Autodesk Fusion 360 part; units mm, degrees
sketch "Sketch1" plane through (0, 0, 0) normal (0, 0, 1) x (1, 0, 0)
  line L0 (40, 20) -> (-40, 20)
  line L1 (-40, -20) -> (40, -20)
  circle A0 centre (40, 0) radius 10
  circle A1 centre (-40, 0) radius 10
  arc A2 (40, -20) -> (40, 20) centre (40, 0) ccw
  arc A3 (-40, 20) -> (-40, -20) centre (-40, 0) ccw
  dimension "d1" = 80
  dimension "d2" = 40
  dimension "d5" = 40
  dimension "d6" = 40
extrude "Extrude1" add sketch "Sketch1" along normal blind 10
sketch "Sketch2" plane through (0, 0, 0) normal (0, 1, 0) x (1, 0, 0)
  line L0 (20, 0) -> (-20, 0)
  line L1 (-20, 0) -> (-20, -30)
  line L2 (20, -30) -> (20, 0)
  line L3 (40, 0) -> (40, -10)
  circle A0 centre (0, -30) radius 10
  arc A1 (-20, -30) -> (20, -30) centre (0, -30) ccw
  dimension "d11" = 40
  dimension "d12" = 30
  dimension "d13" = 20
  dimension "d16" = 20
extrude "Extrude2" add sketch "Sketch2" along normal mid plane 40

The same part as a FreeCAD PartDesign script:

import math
import FreeCAD as App
import Part
import Sketcher

V = App.Vector

doc = App.newDocument("Part")
params = doc.addObject("Spreadsheet::Sheet", "Params")
for row, (alias, value) in enumerate([
    ("sketch1_radius", "20 mm"),
    ("sketch1_width", "80 mm"),
    ("sketch1_diameter", "20 mm"),
    ("pad1_length", "10 mm"),
    ("sketch2_diameter", "20 mm"),
    ("sketch2_radius", "20 mm"),
    ("sketch2_height", "30 mm"),
    ("pad2_length", "40 mm"),
], start=1):
    params.set(f"A{row}", alias)
    params.set(f"B{row}", "=" + value)
    params.setAlias(f"B{row}", alias)

body = doc.addObject("PartDesign::Body", "Body")

# Sketch on XY plane
sketch1 = body.newObject("Sketcher::SketchObject", "Sketch")
sketch1.AttachmentSupport = (doc.getObject("XY_Plane"), [""])
sketch1.MapMode = "FlatFace"
sketch1.addGeometry([
    Part.ArcOfCircle(Part.Circle(V(40, 0, 0), V(0, 0, 1), 20), math.radians(-90), math.radians(90)),  # 0
    Part.LineSegment(V(40, 20, 0), V(-40, 20, 0)),  # 1
    Part.ArcOfCircle(Part.Circle(V(-40, 0, 0), V(0, 0, 1), 20), math.radians(90), math.radians(270)),  # 2
    Part.LineSegment(V(-40, -20, 0), V(40, -20, 0)),  # 3
    Part.Circle(V(-40, 0, 0), V(0, 0, 1), 10),  # 4
    Part.Circle(V(40, 0, 0), V(0, 0, 1), 10),  # 5
], False)
sketch1.addConstraint([
    Sketcher.Constraint("Tangent", 0, 2, 1, 1),
    Sketcher.Constraint("Tangent", 1, 2, 2, 1),
    Sketcher.Constraint("Tangent", 2, 2, 3, 1),
    Sketcher.Constraint("Tangent", 3, 2, 0, 1),
    Sketcher.Constraint("Horizontal", 1),
    Sketcher.Constraint("Horizontal", 3),
    Sketcher.Constraint("Coincident", 4, 3, 2, 3),
    Sketcher.Constraint("Coincident", 5, 3, 0, 3),
    Sketcher.Constraint("Equal", 4, 5),
    Sketcher.Constraint("Symmetric", 0, 3, 2, 3, -1, 1),
    Sketcher.Constraint("Radius", 0, 20.0),
    Sketcher.Constraint("DistanceX", 1, 2, 1, 1, 80.0),
    Sketcher.Constraint("Diameter", 4, 20.0),
])
sketch1.setExpression("Constraints[10]", "Params.sketch1_radius")
sketch1.setExpression("Constraints[11]", "Params.sketch1_width")
sketch1.setExpression("Constraints[12]", "Params.sketch1_diameter")
pad1 = body.newObject("PartDesign::Pad", "Pad")
pad1.Profile = sketch1
pad1.setExpression("Length", "Params.pad1_length")

# Sketch on XZ plane
sketch2 = body.newObject("Sketcher::SketchObject", "Sketch001")
sketch2.AttachmentSupport = (doc.getObject("XZ_Plane"), [""])
sketch2.MapMode = "FlatFace"
sketch2.addGeometry([
    Part.LineSegment(V(20, 30, 0), V(20, 0, 0)),  # 0
    Part.LineSegment(V(20, 0, 0), V(-20, 0, 0)),  # 1
    Part.LineSegment(V(-20, 0, 0), V(-20, 30, 0)),  # 2
    Part.ArcOfCircle(Part.Circle(V(0, 30, 0), V(0, 0, 1), 20), math.radians(0), math.radians(180)),  # 3
    Part.Circle(V(0, 30, 0), V(0, 0, 1), 10),  # 4
], False)
sketch2.addConstraint([
    Sketcher.Constraint("Coincident", 0, 2, 1, 1),
    Sketcher.Constraint("Coincident", 1, 2, 2, 1),
    Sketcher.Constraint("Tangent", 2, 2, 3, 2),
    Sketcher.Constraint("Tangent", 3, 1, 0, 1),
    Sketcher.Constraint("Vertical", 0),
    Sketcher.Constraint("Horizontal", 1),
    Sketcher.Constraint("Vertical", 2),
    Sketcher.Constraint("Coincident", 4, 3, 3, 3),
    Sketcher.Constraint("Symmetric", 0, 2, 1, 2, -1, 1),
    Sketcher.Constraint("Diameter", 4, 20.0),
    Sketcher.Constraint("Radius", 3, 20.0),
    Sketcher.Constraint("DistanceY", 0, 2, 0, 1, 30.0),
])
sketch2.setExpression("Constraints[9]", "Params.sketch2_diameter")
sketch2.setExpression("Constraints[10]", "Params.sketch2_radius")
sketch2.setExpression("Constraints[11]", "Params.sketch2_height")
pad2 = body.newObject("PartDesign::Pad", "Pad001")
pad2.Profile = sketch2
pad2.setExpression("Length", "Params.pad2_length")
pad2.Midplane = True

doc.recompute()
